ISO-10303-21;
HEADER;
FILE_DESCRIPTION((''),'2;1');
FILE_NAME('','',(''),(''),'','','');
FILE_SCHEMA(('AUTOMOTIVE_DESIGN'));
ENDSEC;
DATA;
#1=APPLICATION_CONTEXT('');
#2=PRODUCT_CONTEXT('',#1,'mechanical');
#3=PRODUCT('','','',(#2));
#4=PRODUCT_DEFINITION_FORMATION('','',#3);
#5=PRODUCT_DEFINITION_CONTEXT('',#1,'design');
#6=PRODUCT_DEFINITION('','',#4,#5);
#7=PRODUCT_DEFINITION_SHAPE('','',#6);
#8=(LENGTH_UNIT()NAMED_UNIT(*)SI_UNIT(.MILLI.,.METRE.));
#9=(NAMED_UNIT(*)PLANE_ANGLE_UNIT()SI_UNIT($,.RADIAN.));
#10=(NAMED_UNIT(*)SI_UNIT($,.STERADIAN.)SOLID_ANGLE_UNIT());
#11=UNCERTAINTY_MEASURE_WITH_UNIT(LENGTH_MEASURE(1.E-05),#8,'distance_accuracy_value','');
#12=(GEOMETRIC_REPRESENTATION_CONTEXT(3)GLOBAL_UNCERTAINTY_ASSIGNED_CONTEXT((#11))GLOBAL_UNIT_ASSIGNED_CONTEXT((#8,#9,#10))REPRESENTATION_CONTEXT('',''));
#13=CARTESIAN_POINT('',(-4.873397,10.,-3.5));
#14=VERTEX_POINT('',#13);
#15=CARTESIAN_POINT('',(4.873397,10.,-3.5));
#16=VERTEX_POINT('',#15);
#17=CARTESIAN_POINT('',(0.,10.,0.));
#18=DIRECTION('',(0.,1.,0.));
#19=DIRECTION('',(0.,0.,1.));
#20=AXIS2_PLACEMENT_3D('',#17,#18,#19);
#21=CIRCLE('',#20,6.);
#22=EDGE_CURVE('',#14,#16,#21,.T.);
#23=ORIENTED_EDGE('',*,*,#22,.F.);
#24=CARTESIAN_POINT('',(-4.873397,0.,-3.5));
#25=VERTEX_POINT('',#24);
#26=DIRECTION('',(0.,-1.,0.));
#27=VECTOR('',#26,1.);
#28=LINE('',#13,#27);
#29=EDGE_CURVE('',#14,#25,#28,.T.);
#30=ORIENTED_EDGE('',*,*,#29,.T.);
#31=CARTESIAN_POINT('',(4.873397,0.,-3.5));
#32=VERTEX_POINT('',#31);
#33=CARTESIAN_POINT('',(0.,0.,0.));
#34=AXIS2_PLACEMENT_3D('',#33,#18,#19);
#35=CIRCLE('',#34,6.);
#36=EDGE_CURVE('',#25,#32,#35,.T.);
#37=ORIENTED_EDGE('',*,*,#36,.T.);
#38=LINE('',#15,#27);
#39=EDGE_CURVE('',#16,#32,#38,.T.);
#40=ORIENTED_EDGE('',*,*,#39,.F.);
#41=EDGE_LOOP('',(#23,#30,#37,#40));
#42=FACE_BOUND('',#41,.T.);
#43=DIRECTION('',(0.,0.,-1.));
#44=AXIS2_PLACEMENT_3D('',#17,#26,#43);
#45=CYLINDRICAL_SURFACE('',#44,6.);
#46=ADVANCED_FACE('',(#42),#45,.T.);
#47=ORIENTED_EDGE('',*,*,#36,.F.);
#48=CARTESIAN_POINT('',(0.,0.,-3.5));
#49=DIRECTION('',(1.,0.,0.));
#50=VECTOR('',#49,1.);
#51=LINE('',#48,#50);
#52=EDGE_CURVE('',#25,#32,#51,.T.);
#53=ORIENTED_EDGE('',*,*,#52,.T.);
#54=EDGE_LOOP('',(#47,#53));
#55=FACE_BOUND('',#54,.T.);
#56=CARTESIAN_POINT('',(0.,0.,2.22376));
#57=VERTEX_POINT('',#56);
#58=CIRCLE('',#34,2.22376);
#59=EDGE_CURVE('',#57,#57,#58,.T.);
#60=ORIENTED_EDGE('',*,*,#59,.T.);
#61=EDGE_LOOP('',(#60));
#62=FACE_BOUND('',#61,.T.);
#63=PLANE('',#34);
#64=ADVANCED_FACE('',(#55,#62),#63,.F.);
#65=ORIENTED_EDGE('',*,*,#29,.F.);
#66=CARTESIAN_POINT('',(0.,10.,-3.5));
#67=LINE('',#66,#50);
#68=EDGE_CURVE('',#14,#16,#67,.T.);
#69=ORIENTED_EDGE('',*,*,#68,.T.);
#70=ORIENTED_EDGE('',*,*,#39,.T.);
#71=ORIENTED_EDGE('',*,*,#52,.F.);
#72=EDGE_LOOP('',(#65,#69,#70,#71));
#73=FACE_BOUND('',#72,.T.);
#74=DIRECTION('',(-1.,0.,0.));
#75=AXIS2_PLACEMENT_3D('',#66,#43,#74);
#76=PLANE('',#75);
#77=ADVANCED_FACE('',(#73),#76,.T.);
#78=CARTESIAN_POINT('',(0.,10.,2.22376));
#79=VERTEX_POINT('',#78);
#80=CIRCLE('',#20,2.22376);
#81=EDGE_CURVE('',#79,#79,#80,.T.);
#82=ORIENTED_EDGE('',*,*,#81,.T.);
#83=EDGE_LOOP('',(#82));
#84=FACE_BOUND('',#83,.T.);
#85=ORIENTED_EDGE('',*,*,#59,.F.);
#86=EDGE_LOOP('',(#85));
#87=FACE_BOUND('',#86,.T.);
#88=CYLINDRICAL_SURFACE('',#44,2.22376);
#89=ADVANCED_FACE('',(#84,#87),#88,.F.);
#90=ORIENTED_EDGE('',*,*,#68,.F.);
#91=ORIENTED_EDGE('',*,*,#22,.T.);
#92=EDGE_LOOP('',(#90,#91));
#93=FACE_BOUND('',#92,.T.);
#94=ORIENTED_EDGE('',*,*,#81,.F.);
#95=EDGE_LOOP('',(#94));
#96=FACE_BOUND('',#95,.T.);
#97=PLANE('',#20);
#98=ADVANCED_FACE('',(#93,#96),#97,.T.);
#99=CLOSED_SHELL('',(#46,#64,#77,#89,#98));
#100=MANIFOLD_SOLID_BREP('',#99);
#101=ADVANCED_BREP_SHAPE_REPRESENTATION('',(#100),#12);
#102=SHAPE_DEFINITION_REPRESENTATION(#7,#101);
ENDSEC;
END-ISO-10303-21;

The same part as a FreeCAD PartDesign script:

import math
import FreeCAD as App
import Part
import Sketcher

doc = App.newDocument("Part")
params = doc.addObject("Spreadsheet::Sheet", "Params")
for row, (alias, value) in enumerate([
    ("sketch1_radius", "6 mm"),
    ("pad1_length", "10 mm"),
], start=1):
    params.set(f"A{row}", alias)
    params.set(f"B{row}", "=" + value)
    params.setAlias(f"B{row}", alias)

body = doc.addObject("PartDesign::Body", "Body")

# Sketch on XZ plane
sketch1 = body.newObject("Sketcher::SketchObject", "Sketch")
sketch1.AttachmentSupport = (doc.getObject("XZ_Plane"), [""])
sketch1.MapMode = "FlatFace"
sketch1.addGeometry(Part.LineSegment(App.Vector(4.9, -3.5, 0), App.Vector(-4.9, -3.5, 0)), False)
sketch1.addGeometry(Part.ArcOfCircle(Part.Circle(App.Vector(0, 0, 0), App.Vector(0, 0, 1), 6), math.radians(0), math.radians(216)), False)
sketch1.addGeometry(Part.ArcOfCircle(Part.Circle(App.Vector(0, 0, 0), App.Vector(0, 0, 1), 6), math.radians(-36), math.radians(0)), False)
sketch1.addGeometry(Part.Circle(App.Vector(0, 0, 0), App.Vector(0, 0, 1), 2.2), False)
sketch1.addConstraint(Sketcher.Constraint("Coincident", 0, 2, 1, 2))
sketch1.addConstraint(Sketcher.Constraint("Tangent", 1, 1, 2, 2))
sketch1.addConstraint(Sketcher.Constraint("Coincident", 2, 1, 0, 1))
sketch1.addConstraint(Sketcher.Constraint("Horizontal", 0))
sketch1.addConstraint(Sketcher.Constraint("Coincident", 1, 3, -1, 1))
sketch1.addConstraint(Sketcher.Constraint("Coincident", 3, 3, -1, 1))
sketch1.addConstraint(Sketcher.Constraint("Equal", 1, 2))
sketch1.addConstraint(Sketcher.Constraint("PointOnObject", 1, 1, -1))
sketch1.addConstraint(Sketcher.Constraint("Radius", 1, 6.0))
sketch1.addConstraint(Sketcher.Constraint("DistanceY", 0, 2, -1, 1, 3.5))
sketch1.addConstraint(Sketcher.Constraint("Diameter", 3, 4.447521))
sketch1.setExpression("Constraints[8]", "Params.sketch1_radius")
pad1 = body.newObject("PartDesign::Pad", "Pad")
pad1.Profile = sketch1
pad1.setExpression("Length", "Params.pad1_length")
pad1.Reversed = True

doc.recompute()
